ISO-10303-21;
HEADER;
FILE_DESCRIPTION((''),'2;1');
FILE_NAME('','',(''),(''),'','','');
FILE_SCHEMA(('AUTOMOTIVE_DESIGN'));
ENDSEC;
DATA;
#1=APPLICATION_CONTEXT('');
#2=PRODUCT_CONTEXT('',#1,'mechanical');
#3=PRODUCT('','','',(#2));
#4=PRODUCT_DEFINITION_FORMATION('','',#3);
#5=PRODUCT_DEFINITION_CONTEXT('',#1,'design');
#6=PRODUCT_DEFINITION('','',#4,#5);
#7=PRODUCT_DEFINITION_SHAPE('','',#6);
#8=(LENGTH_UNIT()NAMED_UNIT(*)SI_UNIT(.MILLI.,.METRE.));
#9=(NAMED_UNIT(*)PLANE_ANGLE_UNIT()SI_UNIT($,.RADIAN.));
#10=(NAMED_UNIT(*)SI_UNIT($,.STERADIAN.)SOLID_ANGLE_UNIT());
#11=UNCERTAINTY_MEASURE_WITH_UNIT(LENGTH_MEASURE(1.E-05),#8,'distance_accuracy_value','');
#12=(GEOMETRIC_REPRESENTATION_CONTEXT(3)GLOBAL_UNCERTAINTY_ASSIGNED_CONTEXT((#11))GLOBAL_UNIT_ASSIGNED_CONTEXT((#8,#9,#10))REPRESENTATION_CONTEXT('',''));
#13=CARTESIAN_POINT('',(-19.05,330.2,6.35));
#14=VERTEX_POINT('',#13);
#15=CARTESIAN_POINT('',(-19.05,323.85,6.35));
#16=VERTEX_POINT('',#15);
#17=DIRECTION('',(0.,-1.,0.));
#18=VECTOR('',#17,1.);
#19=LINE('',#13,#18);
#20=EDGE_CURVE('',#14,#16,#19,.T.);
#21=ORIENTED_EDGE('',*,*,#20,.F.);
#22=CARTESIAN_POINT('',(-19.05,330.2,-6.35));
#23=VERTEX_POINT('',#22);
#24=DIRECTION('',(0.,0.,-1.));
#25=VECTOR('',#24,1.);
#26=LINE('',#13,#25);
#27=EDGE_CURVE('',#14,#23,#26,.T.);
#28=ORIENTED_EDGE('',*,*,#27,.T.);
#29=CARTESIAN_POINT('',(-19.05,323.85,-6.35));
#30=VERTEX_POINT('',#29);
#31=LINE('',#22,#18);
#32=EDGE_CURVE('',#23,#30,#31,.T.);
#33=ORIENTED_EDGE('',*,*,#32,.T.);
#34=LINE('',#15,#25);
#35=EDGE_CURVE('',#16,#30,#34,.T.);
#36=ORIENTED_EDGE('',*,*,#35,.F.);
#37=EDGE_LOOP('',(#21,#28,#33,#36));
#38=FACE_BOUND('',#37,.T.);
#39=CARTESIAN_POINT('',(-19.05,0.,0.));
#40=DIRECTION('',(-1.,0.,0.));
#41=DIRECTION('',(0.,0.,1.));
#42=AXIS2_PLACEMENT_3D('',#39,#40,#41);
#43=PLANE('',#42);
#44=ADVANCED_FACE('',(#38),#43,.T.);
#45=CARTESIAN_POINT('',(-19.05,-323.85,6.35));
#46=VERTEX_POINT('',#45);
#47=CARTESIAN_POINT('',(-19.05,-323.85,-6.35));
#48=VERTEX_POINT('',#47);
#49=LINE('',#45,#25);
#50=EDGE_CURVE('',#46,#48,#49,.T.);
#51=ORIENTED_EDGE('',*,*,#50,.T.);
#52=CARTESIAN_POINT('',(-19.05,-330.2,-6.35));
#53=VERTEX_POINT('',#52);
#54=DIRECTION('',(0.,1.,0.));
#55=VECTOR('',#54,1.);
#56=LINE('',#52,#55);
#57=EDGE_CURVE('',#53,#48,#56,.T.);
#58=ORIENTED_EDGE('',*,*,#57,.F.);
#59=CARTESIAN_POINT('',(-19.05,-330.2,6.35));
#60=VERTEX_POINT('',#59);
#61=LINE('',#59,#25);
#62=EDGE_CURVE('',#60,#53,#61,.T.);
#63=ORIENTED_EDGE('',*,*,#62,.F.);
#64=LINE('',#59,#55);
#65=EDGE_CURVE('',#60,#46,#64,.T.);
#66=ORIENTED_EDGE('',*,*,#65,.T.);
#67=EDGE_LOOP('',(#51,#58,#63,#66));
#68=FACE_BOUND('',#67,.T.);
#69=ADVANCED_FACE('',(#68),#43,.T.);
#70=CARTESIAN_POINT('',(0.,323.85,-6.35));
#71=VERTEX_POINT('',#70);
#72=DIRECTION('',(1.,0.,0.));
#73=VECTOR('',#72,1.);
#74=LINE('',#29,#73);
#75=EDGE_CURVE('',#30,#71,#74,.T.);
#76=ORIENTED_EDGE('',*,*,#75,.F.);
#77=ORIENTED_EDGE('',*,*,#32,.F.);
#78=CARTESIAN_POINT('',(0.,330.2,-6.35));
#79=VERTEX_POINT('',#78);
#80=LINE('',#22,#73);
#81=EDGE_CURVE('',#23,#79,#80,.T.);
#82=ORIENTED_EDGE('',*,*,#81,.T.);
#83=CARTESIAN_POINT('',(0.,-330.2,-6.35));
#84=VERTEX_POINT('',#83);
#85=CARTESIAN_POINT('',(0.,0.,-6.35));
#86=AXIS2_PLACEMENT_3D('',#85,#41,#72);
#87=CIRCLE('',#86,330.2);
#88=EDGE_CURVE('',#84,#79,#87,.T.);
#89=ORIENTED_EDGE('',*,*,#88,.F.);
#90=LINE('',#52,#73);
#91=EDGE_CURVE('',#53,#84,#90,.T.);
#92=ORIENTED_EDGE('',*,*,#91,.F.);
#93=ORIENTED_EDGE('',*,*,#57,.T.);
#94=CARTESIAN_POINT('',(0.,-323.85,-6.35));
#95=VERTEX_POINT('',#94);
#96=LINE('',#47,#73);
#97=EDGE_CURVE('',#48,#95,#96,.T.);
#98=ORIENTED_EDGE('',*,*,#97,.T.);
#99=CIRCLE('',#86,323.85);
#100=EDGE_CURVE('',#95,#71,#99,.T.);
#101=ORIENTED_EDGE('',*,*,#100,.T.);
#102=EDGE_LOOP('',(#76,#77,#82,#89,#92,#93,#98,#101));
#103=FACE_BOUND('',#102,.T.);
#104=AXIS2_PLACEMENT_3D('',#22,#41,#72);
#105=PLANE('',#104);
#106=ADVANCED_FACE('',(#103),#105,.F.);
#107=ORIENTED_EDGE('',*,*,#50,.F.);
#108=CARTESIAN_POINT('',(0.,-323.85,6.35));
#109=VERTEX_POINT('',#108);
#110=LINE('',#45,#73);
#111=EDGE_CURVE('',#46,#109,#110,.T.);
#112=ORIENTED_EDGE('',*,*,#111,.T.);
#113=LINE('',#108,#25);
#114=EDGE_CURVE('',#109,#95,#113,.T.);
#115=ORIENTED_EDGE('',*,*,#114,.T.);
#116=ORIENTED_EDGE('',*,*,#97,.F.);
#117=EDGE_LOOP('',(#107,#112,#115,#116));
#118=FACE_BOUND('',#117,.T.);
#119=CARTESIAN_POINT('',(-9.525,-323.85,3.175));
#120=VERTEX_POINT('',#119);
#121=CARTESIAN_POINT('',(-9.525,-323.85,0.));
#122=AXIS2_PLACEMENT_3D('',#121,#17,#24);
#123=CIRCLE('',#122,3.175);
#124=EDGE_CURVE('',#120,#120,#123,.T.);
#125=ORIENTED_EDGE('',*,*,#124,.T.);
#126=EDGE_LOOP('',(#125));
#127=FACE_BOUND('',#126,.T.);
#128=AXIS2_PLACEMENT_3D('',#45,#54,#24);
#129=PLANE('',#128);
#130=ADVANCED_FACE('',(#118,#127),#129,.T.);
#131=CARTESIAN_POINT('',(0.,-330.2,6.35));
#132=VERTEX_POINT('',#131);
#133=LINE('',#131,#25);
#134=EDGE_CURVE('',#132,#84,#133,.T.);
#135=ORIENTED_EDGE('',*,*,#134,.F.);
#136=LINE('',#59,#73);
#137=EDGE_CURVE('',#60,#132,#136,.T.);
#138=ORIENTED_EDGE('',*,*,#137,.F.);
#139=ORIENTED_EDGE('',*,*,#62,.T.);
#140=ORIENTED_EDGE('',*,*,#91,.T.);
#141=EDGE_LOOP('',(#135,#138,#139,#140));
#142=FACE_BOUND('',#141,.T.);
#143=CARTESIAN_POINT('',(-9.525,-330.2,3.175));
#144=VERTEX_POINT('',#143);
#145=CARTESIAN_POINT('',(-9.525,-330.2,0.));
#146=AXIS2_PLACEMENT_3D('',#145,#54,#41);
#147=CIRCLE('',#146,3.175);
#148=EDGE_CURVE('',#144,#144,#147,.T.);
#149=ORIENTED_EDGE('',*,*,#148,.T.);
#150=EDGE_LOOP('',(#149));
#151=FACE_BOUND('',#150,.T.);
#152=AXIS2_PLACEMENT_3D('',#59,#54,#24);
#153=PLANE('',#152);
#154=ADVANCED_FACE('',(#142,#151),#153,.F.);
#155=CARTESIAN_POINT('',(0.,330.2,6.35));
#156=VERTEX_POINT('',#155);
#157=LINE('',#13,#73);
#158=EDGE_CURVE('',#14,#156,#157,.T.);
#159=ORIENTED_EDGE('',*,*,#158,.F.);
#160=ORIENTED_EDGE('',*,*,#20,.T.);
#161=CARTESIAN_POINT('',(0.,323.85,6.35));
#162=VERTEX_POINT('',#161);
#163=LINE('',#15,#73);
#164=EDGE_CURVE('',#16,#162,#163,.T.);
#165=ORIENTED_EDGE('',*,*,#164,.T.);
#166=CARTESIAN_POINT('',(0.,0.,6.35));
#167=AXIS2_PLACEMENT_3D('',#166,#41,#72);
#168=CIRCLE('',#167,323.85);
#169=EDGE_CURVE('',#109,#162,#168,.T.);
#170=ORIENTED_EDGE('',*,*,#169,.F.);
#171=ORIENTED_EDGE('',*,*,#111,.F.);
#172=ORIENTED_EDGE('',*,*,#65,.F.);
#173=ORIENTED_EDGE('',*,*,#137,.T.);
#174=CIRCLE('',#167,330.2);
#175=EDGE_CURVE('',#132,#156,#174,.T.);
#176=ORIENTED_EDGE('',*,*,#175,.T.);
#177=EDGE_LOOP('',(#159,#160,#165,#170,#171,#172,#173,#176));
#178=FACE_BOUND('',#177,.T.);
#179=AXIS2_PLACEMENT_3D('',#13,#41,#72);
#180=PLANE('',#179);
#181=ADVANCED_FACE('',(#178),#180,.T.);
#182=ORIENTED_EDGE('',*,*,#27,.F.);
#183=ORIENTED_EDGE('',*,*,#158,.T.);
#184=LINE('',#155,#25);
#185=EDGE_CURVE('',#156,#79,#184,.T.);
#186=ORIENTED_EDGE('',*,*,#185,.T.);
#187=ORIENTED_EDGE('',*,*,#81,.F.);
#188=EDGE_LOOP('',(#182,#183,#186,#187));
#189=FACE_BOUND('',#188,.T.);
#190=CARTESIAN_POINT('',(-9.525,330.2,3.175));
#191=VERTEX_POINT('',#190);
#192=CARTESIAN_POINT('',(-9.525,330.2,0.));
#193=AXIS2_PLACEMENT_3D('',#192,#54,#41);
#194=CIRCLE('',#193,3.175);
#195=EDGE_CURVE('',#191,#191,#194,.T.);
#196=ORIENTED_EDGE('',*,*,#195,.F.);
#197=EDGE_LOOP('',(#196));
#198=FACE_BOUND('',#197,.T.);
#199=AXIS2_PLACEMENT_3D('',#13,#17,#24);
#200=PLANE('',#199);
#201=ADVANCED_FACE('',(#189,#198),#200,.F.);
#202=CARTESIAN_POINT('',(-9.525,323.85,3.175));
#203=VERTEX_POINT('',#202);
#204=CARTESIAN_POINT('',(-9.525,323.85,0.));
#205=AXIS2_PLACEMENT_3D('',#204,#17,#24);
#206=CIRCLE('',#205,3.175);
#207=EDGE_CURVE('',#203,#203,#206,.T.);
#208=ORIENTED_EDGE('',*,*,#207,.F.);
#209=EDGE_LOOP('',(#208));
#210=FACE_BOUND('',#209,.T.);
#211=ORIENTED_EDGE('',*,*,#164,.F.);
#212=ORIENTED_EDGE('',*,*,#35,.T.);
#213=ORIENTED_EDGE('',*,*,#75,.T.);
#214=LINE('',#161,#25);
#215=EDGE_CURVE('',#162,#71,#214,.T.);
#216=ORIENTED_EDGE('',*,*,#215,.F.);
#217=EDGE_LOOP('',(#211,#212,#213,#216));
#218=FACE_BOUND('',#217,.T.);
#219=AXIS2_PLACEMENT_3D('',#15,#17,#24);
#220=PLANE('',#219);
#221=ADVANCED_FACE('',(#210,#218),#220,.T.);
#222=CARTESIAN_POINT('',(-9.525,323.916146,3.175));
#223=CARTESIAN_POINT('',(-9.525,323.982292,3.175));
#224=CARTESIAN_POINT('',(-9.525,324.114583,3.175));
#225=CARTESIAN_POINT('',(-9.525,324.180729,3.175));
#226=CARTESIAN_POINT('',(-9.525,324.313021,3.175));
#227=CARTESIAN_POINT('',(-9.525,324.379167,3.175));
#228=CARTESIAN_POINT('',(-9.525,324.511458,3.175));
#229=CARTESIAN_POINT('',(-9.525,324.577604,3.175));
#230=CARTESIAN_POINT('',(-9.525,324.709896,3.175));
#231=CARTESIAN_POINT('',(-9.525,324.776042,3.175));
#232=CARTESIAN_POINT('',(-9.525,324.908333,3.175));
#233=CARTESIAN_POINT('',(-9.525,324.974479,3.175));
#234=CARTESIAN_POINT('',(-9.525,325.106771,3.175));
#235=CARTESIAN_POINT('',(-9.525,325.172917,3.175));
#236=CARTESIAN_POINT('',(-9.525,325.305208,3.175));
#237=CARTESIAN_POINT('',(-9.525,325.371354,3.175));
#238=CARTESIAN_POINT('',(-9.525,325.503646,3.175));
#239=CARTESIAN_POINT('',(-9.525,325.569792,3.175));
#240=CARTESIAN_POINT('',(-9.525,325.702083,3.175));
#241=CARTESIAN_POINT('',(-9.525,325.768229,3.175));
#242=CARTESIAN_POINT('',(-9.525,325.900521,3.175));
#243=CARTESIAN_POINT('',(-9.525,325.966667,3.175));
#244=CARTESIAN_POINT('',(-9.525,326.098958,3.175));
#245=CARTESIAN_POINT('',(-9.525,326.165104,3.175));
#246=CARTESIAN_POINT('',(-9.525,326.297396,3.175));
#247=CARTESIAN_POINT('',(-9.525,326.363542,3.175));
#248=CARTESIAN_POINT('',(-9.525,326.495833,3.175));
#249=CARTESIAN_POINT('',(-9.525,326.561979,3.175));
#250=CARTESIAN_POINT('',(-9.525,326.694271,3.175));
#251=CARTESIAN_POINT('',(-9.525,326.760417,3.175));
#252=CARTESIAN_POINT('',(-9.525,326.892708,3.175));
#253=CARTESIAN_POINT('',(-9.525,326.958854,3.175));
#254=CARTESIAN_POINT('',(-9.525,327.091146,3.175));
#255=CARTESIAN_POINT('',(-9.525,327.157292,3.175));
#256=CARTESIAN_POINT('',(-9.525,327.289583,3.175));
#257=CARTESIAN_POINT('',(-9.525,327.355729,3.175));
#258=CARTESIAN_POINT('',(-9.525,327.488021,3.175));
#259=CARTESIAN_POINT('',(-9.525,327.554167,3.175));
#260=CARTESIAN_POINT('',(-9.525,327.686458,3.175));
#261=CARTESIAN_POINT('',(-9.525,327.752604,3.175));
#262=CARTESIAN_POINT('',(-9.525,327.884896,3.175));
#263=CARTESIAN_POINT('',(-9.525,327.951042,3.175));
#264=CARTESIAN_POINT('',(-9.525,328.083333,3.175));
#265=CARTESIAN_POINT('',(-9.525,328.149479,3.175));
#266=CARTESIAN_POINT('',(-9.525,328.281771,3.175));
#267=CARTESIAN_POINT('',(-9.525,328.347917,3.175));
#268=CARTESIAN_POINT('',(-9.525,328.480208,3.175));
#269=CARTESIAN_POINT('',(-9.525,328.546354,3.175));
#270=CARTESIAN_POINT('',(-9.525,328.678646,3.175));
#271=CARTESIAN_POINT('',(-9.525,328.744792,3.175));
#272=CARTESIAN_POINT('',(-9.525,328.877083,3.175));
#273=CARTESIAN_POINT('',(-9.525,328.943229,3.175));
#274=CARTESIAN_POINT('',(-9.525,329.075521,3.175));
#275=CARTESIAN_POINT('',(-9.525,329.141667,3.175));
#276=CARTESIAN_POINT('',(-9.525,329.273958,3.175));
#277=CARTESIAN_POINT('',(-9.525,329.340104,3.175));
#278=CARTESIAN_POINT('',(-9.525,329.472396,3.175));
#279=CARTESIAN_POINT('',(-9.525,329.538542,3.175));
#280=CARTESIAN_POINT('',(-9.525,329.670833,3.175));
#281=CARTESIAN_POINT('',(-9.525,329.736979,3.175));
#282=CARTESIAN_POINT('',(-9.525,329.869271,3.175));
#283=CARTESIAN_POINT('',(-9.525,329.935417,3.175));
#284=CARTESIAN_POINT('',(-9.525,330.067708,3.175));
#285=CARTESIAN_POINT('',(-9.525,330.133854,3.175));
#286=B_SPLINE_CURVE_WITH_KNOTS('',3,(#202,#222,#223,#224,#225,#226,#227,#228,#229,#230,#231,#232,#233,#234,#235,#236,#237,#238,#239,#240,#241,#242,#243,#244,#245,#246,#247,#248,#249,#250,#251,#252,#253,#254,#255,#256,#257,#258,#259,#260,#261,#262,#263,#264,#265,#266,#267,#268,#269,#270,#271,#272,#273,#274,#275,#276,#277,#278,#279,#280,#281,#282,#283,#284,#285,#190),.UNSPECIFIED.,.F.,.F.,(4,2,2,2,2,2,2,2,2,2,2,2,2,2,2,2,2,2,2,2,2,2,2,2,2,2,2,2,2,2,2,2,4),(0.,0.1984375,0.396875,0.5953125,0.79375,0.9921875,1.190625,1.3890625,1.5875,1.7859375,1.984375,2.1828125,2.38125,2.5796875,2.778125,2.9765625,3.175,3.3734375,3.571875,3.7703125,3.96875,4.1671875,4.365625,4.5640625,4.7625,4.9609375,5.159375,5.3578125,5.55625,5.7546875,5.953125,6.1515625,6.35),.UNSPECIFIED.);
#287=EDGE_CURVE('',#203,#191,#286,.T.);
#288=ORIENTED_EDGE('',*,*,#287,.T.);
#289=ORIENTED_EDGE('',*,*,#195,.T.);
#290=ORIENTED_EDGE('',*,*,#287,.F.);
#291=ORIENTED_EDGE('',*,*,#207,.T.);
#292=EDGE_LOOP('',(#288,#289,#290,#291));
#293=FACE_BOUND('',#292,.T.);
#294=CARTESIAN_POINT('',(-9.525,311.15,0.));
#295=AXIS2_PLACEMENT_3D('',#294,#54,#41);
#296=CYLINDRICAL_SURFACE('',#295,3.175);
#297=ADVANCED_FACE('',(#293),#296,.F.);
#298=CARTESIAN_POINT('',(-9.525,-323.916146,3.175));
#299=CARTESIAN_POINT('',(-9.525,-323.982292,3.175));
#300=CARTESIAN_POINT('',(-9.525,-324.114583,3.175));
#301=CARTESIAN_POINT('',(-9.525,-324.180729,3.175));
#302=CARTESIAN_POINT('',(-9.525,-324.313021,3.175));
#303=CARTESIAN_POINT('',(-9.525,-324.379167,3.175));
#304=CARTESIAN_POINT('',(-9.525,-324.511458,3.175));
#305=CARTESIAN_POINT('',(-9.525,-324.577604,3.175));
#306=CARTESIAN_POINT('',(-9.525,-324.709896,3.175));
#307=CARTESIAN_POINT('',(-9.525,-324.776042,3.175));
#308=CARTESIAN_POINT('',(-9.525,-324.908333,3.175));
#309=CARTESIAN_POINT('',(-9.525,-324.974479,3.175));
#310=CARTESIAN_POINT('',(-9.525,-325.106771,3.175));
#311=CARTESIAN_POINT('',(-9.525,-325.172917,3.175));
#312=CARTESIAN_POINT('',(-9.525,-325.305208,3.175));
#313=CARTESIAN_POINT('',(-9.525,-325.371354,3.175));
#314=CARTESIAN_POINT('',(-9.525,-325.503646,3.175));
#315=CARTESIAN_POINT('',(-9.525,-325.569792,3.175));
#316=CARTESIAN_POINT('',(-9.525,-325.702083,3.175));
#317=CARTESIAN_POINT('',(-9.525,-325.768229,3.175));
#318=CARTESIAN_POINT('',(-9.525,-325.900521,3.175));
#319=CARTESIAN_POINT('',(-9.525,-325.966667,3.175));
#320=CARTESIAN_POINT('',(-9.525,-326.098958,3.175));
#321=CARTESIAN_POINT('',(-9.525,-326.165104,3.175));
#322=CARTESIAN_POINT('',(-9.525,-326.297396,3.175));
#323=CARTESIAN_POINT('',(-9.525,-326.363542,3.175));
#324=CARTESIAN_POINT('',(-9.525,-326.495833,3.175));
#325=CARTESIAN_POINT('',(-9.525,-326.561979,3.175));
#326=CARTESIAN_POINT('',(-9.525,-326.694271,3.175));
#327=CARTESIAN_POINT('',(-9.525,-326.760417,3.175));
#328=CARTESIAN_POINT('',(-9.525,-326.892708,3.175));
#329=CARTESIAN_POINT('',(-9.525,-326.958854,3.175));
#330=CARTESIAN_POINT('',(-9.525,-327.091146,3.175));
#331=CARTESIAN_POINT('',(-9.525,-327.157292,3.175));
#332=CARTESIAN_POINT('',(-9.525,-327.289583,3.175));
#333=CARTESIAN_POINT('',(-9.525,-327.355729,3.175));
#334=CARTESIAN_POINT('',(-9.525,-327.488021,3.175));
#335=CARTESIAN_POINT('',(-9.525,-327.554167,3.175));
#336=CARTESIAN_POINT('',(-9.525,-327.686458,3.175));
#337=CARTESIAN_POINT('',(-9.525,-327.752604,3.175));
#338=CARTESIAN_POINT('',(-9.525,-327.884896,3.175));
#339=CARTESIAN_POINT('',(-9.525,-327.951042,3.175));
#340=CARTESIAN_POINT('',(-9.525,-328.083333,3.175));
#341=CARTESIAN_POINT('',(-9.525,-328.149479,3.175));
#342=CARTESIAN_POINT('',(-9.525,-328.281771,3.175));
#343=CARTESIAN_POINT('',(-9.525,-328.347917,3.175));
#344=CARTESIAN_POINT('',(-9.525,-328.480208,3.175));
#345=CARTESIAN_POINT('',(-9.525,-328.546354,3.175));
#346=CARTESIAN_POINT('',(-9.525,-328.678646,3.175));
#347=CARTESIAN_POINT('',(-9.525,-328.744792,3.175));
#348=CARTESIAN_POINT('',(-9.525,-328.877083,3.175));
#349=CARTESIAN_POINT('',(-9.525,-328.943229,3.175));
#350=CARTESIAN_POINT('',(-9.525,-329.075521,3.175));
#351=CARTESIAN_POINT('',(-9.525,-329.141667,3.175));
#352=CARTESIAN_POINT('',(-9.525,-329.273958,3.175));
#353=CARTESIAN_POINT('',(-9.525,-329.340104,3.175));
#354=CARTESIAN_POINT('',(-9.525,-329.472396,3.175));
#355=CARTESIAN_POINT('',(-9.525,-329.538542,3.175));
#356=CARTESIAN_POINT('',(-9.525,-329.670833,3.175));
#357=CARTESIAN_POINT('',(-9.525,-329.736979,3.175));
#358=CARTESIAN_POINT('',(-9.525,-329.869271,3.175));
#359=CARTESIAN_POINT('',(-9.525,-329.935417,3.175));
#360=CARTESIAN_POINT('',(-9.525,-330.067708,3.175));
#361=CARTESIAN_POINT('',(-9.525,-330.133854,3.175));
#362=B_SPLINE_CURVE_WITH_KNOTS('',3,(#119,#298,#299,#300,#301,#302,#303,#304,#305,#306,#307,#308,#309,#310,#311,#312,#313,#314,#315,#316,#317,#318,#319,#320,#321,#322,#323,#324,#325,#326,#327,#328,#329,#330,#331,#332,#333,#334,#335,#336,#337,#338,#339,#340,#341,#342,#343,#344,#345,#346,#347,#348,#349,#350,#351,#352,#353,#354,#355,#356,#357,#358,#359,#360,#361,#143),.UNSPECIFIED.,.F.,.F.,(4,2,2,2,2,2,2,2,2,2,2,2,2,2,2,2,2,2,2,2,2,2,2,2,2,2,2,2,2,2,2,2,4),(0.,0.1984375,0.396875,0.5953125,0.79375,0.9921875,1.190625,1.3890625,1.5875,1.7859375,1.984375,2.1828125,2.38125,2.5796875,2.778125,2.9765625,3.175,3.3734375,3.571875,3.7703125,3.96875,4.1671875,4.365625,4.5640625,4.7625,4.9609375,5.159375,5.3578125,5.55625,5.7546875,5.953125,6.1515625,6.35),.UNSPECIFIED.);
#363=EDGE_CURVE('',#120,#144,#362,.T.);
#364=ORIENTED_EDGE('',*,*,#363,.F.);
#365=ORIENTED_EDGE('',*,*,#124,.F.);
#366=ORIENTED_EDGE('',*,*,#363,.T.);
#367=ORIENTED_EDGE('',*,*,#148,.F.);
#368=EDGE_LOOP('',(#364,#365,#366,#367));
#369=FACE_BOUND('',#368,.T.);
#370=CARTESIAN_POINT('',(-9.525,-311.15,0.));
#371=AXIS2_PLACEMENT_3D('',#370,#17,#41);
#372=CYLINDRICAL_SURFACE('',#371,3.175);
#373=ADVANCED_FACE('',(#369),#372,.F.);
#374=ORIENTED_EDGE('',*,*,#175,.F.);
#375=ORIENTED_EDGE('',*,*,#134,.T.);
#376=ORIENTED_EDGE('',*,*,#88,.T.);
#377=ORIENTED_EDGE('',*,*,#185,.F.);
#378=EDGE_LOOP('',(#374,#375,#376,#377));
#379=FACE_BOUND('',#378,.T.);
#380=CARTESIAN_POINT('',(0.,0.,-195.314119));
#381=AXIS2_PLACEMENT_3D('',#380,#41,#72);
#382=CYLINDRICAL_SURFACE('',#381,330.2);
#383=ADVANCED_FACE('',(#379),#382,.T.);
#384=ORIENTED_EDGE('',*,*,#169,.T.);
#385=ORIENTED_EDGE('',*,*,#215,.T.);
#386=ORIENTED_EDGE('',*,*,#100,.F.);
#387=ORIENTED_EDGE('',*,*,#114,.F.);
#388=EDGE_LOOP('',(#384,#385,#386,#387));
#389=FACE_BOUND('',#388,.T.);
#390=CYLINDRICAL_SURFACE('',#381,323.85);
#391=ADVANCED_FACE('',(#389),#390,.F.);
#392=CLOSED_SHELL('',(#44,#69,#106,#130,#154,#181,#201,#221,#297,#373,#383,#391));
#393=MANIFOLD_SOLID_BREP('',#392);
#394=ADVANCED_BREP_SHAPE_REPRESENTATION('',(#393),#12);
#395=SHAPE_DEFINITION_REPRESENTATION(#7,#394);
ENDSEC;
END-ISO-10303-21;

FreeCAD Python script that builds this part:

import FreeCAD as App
import Part
import Sketcher
Q = App.Units.Quantity


def add_polygon(sketch, points):
    """Adds a closed chain of lines whose ends are joined by coincident constraints."""
    first, n = sketch.GeometryCount, len(points)
    for a, b in zip(points, points[1:] + points[:1]):
        sketch.addGeometry(Part.LineSegment(App.Vector(*a, 0), App.Vector(*b, 0)), False)
    for i in range(n):
        sketch.addConstraint(Sketcher.Constraint("Coincident", first + i, 2, first + (i + 1) % n, 1))

doc = App.newDocument("Part")
body = doc.addObject("PartDesign::Body", "Body")

# Sketch on YZ plane
sketch1 = doc.addObject("Sketcher::SketchObject", "Sketch")
body.addObject(sketch1)
sketch1.AttachmentSupport = (doc.YZ_Plane, [""])
sketch1.MapMode = "FlatFace"
add_polygon(sketch1, [(330, 6), (324, 6), (324, -6), (330, -6)])  # lines 0-3
sketch1.addConstraint([
    Sketcher.Constraint("Horizontal", 0),
    Sketcher.Constraint("Vertical", 1),
    Sketcher.Constraint("Horizontal", 2),
    Sketcher.Constraint("Vertical", 3),
    Sketcher.Constraint("DistanceY", 1, 2, 1, 1, Q("0.5 in")),
    Sketcher.Constraint("DistanceX", -1, 1, 2, 2, Q("13 in")),
    Sketcher.Constraint("DistanceX", 0, 2, 0, 1, Q("0.25 in")),
    Sketcher.Constraint("DistanceY", -1, 1, 0, 2, Q("0.25 in")),
])
pad1 = doc.addObject("PartDesign::Pad", "Pad")
body.addObject(pad1)
pad1.Profile = sketch1
pad1.Length = Q("0.75 in")
pad1.Reversed = True

# Sketch on XZ plane
sketch2 = doc.addObject("Sketcher::SketchObject", "Sketch001")
body.addObject(sketch2)
sketch2.AttachmentSupport = (doc.XZ_Plane, [""])
sketch2.MapMode = "FlatFace"
sketch2.AttachmentOffset = App.Placement(App.Vector(0, 0, -13 * 25.4), App.Rotation())
sketch2.addGeometry(Part.Circle(App.Vector(-9.5, 0, 0), App.Vector(0, 0, 1), 3.2), False)
sketch2.addConstraint([
    Sketcher.Constraint("PointOnObject", 0, 3, -1),
    Sketcher.Constraint("Diameter", 0, Q("0.25 in")),
    Sketcher.Constraint("DistanceX", 0, 3, -1, 1, Q("0.375 in")),
])
pocket1 = doc.addObject("PartDesign::Pocket", "Pocket")
body.addObject(pocket1)
pocket1.Profile = sketch2
pocket1.Length = Q("0.75 in")
pocket1.Reversed = True

# Sketch on YZ plane
sketch3 = doc.addObject("Sketcher::SketchObject", "Sketch002")
body.addObject(sketch3)
sketch3.AttachmentSupport = (doc.YZ_Plane, [""])
sketch3.MapMode = "FlatFace"
add_polygon(sketch3, [(330, 6), (324, 6), (324, -6), (330, -6)])  # lines 0-3
sketch3.addConstraint([
    Sketcher.Constraint("Horizontal", 0),
    Sketcher.Constraint("Vertical", 1),
    Sketcher.Constraint("Horizontal", 2),
    Sketcher.Constraint("Vertical", 3),
    Sketcher.Constraint("DistanceY", 1, 2, 1, 1, Q("0.5 in")),
    Sketcher.Constraint("DistanceX", -1, 1, 2, 2, Q("13 in")),
    Sketcher.Constraint("DistanceX", 0, 2, 0, 1, Q("0.25 in")),
    Sketcher.Constraint("DistanceY", -1, 1, 0, 2, Q("0.25 in")),
])
revolution = doc.addObject("PartDesign::Revolution", "Revolution")
body.addObject(revolution)
revolution.Profile = sketch3
revolution.ReferenceAxis = (sketch3, ["V_Axis"])
revolution.Angle = 90
revolution.Reversed = True
body2 = doc.addObject("PartDesign::Body", "Body001")
doc.recompute()

body2.BaseFeature = body
doc.recompute()

mirroring = doc.addObject("Part::Mirroring", "Mirroring")
mirroring.Source = body
mirroring.Base = App.Vector(0, 0, 0)
mirroring.Normal = App.Vector(0, 1, 0)
body3 = doc.addObject("PartDesign::Body", "Body002")
body3.BaseFeature = mirroring
boolean = doc.addObject("PartDesign::Boolean", "Boolean")
body2.addObject(boolean)
boolean.Type = "Fuse"
boolean.addObjects([body3])
doc.recompute()
mirroring.Visibility = False

doc.recompute()
